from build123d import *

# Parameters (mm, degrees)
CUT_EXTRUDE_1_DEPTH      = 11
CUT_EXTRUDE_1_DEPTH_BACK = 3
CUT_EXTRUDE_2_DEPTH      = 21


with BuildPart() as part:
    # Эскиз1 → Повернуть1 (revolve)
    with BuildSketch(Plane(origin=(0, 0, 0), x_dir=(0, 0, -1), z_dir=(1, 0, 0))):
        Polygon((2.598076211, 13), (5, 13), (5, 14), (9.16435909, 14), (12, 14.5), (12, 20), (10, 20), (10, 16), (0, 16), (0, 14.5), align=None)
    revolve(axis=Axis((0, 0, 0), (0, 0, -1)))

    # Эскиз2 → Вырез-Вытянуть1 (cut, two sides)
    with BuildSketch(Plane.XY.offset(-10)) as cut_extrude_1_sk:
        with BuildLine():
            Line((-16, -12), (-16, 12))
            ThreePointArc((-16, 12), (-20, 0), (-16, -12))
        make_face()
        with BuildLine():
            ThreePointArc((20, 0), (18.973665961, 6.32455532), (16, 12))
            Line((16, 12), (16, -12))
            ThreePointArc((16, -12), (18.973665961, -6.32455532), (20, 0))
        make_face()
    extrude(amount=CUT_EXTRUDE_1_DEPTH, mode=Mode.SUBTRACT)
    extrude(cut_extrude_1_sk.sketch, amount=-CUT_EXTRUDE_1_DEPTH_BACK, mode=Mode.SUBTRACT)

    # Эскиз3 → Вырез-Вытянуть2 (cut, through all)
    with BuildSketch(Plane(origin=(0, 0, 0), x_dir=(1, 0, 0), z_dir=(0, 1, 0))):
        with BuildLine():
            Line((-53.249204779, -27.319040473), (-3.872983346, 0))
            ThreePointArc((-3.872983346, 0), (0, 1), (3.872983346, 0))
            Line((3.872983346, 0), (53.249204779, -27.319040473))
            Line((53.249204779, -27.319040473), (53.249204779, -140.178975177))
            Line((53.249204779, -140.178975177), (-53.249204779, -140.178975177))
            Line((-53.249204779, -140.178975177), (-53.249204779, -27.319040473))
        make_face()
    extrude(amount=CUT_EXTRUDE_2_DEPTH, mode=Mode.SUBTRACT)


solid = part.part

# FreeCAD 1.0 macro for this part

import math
import FreeCAD as App
import Part
import Sketcher
Q = App.Units.Quantity


def add_polygon(sketch, points):
    """Adds a closed chain of lines whose ends are joined by coincident constraints."""
    first, n = sketch.GeometryCount, len(points)
    for a, b in zip(points, points[1:] + points[:1]):
        sketch.addGeometry(Part.LineSegment(App.Vector(*a, 0), App.Vector(*b, 0)), False)
    for i in range(n):
        sketch.addConstraint(Sketcher.Constraint("Coincident", first + i, 2, first + (i + 1) % n, 1))

doc = App.newDocument("Part")
body = doc.addObject("PartDesign::Body", "Body")

# Sketch on YZ plane
sketch1 = body.newObject("Sketcher::SketchObject", "Sketch")
sketch1.AttachmentSupport = (doc.getObject("YZ_Plane"), [""])
sketch1.MapMode = "FlatFace"
add_polygon(sketch1, [(13, -2.598076), (13, -5), (14, -5), (14, -9.164359), (14.5, -12), (20, -12), (20, -10), (16, -10), (16, 0), (14.5, 0)])  # lines 0-9
sketch1.addConstraint([
    Sketcher.Constraint("Vertical", 0),
    Sketcher.Constraint("Horizontal", 1),
    Sketcher.Constraint("Vertical", 2),
    Sketcher.Constraint("Horizontal", 4),
    Sketcher.Constraint("Vertical", 5),
    Sketcher.Constraint("Horizontal", 6),
    Sketcher.Constraint("Vertical", 7),
    Sketcher.Constraint("Horizontal", 8),
    Sketcher.Constraint("PointOnObject", 7, 2, -1),
    Sketcher.Constraint("Vertical", 3, 2, 8, 2),
    Sketcher.Constraint("DistanceX", 1, 1, 1, 2, 1.0),
    Sketcher.Constraint("DistanceX", 6, 2, 6, 1, 4.0),
    Sketcher.Constraint("DistanceY", 5, 1, 5, 2, 2.0),
    Sketcher.Constraint("DistanceY", 7, 1, 7, 2, 10.0),
    Sketcher.Constraint("Angle", 3, Q("-80 deg")),
    Sketcher.Constraint("Angle", 9, Q("-120 deg")),
    Sketcher.Constraint("Distance", 9, 3.0),
    Sketcher.Constraint("DistanceX", 4, 1, 4, 2, 5.5),
    Sketcher.Constraint("DistanceX", -1, 1, 0, 2, 13.0),
    Sketcher.Constraint("DistanceY", 0, 2, -1, 1, 5.0),
])
revolution = body.newObject("PartDesign::Revolution", "Revolution")
revolution.Profile = sketch1
revolution.ReferenceAxis = (sketch1, ["V_Axis"])
revolution.Angle = 360

# Sketch on XY plane
sketch2 = body.newObject("Sketcher::SketchObject", "Sketch001")
sketch2.AttachmentSupport = (doc.getObject("XY_Plane"), [""])
sketch2.MapMode = "FlatFace"
sketch2.AttachmentOffset = App.Placement(App.Vector(0, 0, -10), App.Rotation())
sketch2.addGeometry([
    Part.LineSegment(App.Vector(-16, -12, 0), App.Vector(-16, 12, 0)),  # 0
    Part.ArcOfCircle(Part.Circle(App.Vector(0, 0, 0), App.Vector(0, 0, 1), 20), math.radians(143.130102), math.radians(216.869898)),  # 1
    Part.ArcOfCircle(Part.Circle(App.Vector(0, 0, 0), App.Vector(0, 0, 1), 20), math.radians(0), math.radians(36.869898)),  # 2
    Part.LineSegment(App.Vector(16, 12, 0), App.Vector(16, -12, 0)),  # 3
    Part.ArcOfCircle(Part.Circle(App.Vector(0, 0, 0), App.Vector(0, 0, 1), 20), math.radians(-36.869898), math.radians(0)),  # 4
], False)
sketch2.addConstraint([
    Sketcher.Constraint("Coincident", 0, 1, 1, 2),
    Sketcher.Constraint("Coincident", 1, 1, 0, 2),
    Sketcher.Constraint("Coincident", 2, 2, 3, 1),
    Sketcher.Constraint("Coincident", 3, 2, 4, 1),
    Sketcher.Constraint("Tangent", 4, 2, 2, 1),
    Sketcher.Constraint("Vertical", 0),
    Sketcher.Constraint("Vertical", 3),
    Sketcher.Constraint("Coincident", 1, 3, -1, 1),
    Sketcher.Constraint("Coincident", 2, 3, -1, 1),
    Sketcher.Constraint("Equal", 1, 2),
    Sketcher.Constraint("Equal", 2, 4),
    Sketcher.Constraint("PointOnObject", 4, 2, -1),
    Sketcher.Constraint("Horizontal", 1, 1, 2, 2),
    Sketcher.Constraint("Radius", 1, 20.0),
    Sketcher.Constraint("DistanceY", 0, 1, 0, 2, 24.0),
])
pocket1 = body.newObject("PartDesign::Pocket", "Pocket")
pocket1.Profile = sketch2
pocket1.Type = "ThroughAll"
pocket1.Midplane = True

# Sketch on XZ plane
sketch3 = body.newObject("Sketcher::SketchObject", "Sketch002")
sketch3.AttachmentSupport = (doc.getObject("XZ_Plane"), [""])
sketch3.MapMode = "FlatFace"
sketch3.addGeometry([
    Part.LineSegment(App.Vector(-3.872983, 0, 0), App.Vector(-53.249205, 27.31904, 0)),  # 0
    Part.LineSegment(App.Vector(-53.249205, 27.31904, 0), App.Vector(-53.249205, 140.178975, 0)),  # 1
    Part.LineSegment(App.Vector(-53.249205, 140.178975, 0), App.Vector(53.249205, 140.178975, 0)),  # 2
    Part.LineSegment(App.Vector(53.249205, 140.178975, 0), App.Vector(53.249205, 27.31904, 0)),  # 3
    Part.LineSegment(App.Vector(53.249205, 27.31904, 0), App.Vector(3.872983, 0, 0)),  # 4
    Part.ArcOfCircle(Part.Circle(App.Vector(0, 7, 0), App.Vector(0, 0, 1), 8), math.radians(-118.955024), math.radians(-61.044976)),  # 5
], False)
sketch3.addConstraint([
    Sketcher.Constraint("Coincident", 0, 2, 1, 1),
    Sketcher.Constraint("Coincident", 1, 2, 2, 1),
    Sketcher.Constraint("Coincident", 2, 2, 3, 1),
    Sketcher.Constraint("Coincident", 3, 2, 4, 1),
    Sketcher.Constraint("Tangent", 4, 2, 5, 2),
    Sketcher.Constraint("Tangent", 5, 1, 0, 1),
    Sketcher.Constraint("Vertical", 1),
    Sketcher.Constraint("Horizontal", 2),
    Sketcher.Constraint("Vertical", 3),
    Sketcher.Constraint("Symmetric", 4, 2, 5, 1, -1, 1),
    Sketcher.Constraint("Symmetric", 0, 2, 3, 2, -2),
    Sketcher.Constraint("Radius", 5, 8.0),
    Sketcher.Constraint("DistanceY", -1, 1, 5, 3, 7.0),
    Sketcher.Constraint("DistanceX", 2, 1, 2, 2, 106.49841),
    Sketcher.Constraint("DistanceY", 1, 1, 1, 2, 112.859935),
])
pocket2 = body.newObject("PartDesign::Pocket", "Pocket001")
pocket2.Profile = sketch3
pocket2.Type = "ThroughAll"

doc.recompute()
